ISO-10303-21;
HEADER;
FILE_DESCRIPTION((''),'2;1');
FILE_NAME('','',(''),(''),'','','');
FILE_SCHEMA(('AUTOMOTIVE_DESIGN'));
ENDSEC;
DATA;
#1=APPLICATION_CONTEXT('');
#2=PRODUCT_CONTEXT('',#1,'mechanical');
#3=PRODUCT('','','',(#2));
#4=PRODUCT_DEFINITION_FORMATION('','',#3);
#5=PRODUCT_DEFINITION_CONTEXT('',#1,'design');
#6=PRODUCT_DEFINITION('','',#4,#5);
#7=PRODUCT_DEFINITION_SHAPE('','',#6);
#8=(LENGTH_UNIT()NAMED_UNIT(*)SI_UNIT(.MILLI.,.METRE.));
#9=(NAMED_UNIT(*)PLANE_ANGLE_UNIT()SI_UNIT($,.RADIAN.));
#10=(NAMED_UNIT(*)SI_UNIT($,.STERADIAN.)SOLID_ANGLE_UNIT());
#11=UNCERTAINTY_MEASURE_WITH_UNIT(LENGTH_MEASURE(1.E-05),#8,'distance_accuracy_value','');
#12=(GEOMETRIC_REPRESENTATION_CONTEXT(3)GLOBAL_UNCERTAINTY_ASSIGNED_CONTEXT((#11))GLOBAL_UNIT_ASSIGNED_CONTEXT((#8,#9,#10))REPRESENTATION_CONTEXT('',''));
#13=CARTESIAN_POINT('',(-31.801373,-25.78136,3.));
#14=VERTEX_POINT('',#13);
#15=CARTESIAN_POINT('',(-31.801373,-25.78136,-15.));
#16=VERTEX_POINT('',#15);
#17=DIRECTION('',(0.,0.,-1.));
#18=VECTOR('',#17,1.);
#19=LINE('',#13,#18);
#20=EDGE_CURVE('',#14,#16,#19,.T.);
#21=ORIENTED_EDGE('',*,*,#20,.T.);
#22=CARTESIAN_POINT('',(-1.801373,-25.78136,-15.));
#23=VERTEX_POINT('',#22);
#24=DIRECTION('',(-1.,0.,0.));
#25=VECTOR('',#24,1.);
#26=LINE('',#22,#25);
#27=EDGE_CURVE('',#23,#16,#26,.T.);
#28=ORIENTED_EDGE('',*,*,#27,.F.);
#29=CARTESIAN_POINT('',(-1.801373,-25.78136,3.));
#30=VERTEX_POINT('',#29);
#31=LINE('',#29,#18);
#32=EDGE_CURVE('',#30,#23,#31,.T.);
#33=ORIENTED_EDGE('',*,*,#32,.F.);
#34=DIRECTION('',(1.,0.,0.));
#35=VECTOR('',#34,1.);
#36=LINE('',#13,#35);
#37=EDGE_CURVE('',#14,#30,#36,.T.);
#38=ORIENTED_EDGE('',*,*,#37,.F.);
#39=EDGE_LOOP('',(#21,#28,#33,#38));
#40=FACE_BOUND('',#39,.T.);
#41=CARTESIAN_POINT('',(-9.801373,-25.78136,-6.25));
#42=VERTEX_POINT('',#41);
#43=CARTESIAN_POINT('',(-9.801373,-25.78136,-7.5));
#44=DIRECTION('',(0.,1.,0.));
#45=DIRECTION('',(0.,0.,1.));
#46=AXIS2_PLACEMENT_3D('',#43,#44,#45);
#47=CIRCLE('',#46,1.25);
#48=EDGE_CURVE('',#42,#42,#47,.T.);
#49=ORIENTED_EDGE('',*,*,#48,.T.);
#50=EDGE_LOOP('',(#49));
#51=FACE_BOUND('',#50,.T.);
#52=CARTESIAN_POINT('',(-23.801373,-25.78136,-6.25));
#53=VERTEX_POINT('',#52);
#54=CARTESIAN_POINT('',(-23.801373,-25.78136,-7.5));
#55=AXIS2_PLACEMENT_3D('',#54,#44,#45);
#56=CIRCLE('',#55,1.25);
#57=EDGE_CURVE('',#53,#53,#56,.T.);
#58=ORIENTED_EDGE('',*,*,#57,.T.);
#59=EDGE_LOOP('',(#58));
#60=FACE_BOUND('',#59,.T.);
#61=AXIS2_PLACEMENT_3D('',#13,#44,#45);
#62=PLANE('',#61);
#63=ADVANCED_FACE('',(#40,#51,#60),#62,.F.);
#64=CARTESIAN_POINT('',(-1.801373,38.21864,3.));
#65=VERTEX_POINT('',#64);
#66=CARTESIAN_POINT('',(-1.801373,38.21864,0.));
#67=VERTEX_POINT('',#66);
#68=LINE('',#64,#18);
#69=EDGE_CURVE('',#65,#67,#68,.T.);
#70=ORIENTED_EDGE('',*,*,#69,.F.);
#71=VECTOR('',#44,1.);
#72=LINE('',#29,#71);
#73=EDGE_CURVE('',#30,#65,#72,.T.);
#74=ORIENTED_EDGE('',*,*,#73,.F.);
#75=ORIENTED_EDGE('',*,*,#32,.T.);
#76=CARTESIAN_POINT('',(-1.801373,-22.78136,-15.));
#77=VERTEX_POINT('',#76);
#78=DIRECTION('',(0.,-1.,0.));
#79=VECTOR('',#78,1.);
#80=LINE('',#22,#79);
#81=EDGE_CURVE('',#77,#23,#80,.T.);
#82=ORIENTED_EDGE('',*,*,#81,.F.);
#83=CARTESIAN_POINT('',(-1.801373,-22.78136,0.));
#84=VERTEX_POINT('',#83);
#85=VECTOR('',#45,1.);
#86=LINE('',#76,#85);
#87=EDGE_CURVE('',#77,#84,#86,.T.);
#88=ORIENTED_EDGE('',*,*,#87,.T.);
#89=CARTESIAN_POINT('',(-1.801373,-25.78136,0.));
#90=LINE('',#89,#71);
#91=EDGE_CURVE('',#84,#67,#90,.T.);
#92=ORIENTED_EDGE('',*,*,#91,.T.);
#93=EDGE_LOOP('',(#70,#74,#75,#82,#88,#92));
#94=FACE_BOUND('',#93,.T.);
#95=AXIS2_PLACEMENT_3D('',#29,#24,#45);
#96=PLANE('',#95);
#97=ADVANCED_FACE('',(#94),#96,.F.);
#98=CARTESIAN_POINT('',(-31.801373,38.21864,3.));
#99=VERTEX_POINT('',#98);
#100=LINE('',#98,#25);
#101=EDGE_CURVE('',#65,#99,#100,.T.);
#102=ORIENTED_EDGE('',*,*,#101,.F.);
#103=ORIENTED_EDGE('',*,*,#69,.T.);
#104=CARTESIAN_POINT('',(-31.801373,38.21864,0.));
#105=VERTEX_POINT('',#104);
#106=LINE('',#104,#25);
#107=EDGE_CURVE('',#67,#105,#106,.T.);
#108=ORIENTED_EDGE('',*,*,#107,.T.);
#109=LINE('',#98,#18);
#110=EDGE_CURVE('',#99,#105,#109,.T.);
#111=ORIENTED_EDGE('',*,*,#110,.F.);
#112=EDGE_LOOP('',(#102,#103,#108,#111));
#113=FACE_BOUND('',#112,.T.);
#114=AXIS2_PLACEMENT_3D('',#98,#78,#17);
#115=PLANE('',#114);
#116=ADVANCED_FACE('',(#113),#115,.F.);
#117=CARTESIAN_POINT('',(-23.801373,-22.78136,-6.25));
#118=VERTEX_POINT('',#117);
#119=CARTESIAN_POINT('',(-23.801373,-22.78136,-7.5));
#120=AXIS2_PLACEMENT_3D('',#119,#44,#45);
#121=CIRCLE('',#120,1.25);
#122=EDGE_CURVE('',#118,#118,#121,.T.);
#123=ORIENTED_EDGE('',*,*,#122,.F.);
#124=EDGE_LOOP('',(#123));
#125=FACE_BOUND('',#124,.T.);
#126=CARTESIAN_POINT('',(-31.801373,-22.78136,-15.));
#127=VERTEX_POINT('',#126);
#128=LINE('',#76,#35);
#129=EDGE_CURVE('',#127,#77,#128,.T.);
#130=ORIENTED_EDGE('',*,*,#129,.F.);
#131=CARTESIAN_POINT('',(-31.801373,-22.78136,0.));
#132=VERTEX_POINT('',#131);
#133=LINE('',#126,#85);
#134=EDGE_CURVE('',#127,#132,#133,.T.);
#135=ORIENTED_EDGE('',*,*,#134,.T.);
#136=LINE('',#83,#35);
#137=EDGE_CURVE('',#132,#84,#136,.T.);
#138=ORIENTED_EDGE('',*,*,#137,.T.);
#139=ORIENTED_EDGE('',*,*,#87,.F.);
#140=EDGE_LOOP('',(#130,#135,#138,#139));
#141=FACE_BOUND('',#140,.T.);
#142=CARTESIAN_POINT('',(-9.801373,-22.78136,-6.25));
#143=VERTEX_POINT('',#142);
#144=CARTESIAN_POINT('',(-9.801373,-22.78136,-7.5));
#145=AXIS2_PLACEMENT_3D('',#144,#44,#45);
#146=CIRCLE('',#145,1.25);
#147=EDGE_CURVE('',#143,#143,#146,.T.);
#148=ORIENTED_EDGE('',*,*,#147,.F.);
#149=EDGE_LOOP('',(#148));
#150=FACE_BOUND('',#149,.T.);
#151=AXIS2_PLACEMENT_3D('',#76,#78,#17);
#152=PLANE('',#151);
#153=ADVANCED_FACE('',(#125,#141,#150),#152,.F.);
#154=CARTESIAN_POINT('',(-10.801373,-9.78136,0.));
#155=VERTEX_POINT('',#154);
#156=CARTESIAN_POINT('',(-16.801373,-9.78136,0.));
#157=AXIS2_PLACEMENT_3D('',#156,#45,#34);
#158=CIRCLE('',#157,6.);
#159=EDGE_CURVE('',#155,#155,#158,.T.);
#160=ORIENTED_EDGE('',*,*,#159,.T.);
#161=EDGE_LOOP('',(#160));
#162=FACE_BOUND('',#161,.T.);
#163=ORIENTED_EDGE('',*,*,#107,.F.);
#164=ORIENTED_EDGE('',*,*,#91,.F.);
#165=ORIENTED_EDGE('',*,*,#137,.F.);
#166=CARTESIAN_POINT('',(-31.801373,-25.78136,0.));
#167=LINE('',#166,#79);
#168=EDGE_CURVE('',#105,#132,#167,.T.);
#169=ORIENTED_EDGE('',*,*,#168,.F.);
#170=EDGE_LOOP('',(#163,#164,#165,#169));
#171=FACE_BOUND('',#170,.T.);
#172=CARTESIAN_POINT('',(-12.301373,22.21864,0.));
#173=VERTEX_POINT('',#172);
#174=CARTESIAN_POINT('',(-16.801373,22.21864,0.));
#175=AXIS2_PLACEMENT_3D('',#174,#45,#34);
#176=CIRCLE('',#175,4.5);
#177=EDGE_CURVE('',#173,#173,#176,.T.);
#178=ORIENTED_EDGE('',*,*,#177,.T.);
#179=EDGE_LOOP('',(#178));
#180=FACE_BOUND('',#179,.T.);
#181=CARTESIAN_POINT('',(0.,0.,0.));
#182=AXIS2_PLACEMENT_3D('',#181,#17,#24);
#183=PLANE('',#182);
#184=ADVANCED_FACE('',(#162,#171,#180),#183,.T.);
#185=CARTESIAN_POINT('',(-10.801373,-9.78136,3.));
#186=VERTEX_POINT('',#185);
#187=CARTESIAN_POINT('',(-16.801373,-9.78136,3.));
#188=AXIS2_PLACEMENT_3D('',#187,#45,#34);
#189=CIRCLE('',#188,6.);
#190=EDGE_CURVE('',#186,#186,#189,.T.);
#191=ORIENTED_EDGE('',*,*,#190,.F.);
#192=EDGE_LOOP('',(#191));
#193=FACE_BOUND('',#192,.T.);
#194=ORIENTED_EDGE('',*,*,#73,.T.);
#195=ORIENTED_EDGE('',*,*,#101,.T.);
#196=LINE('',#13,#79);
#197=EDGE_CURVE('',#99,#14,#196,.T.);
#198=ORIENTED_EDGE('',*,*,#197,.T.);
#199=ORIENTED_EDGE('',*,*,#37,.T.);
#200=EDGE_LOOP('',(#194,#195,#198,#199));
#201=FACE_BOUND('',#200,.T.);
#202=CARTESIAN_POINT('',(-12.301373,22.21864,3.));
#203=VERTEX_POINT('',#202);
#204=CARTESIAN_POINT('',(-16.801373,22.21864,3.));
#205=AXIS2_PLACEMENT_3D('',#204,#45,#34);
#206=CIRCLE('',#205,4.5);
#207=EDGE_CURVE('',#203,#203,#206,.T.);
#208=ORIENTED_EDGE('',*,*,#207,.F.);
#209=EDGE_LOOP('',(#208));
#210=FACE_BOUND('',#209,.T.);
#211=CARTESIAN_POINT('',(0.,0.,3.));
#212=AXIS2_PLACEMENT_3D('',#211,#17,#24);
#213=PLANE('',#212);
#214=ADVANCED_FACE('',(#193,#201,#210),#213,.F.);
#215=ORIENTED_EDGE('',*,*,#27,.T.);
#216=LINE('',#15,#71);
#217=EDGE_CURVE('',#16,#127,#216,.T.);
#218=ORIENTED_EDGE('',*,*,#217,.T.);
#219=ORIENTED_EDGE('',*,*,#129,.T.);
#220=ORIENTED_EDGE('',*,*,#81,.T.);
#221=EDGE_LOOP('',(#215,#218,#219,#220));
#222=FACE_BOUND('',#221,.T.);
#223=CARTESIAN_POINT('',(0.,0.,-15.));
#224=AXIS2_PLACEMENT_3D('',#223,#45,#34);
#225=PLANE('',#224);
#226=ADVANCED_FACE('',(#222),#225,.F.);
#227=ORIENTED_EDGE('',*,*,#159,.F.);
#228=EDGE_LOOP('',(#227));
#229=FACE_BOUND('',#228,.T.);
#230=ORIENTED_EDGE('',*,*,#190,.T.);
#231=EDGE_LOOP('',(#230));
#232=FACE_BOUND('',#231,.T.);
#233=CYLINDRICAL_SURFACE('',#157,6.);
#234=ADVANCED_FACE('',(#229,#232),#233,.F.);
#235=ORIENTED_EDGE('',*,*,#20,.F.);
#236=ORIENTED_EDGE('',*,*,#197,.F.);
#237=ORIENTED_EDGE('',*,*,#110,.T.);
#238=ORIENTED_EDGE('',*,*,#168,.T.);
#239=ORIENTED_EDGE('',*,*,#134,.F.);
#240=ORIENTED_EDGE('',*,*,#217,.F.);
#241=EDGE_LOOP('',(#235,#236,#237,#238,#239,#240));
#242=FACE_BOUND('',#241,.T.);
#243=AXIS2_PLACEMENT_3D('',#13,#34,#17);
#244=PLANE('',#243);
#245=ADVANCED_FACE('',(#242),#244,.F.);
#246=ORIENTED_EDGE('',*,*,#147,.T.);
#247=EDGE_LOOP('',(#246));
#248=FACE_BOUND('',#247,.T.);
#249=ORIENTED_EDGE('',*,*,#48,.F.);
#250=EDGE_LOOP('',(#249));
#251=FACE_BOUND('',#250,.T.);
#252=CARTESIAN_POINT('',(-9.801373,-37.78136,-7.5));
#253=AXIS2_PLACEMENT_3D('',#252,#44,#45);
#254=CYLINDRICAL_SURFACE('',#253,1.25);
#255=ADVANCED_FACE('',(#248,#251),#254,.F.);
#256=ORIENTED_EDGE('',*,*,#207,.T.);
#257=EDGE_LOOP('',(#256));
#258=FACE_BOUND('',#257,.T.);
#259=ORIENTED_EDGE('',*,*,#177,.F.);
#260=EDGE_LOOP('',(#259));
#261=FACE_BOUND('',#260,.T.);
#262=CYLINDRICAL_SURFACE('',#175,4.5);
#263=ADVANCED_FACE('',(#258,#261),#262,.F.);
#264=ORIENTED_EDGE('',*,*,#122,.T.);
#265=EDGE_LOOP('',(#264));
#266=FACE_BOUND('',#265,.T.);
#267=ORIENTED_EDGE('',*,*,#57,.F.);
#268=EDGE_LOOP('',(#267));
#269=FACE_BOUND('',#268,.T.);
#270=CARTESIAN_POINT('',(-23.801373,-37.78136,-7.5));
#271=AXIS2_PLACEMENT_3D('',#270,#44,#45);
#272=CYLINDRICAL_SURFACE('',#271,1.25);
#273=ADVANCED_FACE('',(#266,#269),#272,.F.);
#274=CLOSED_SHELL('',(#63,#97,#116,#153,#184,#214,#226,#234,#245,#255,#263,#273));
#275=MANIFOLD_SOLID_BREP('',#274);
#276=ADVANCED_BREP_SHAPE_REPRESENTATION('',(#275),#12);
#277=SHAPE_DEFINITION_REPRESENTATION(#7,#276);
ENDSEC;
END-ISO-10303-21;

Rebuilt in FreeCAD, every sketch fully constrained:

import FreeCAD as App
import Part
import Sketcher
from FreeCAD import Vector


def add_polygon(sketch, points):
    """Adds a closed chain of lines whose ends are joined by coincident constraints."""
    first, n = sketch.GeometryCount, len(points)
    for a, b in zip(points, points[1:] + points[:1]):
        sketch.addGeometry(Part.LineSegment(App.Vector(*a, 0), App.Vector(*b, 0)), False)
    for i in range(n):
        sketch.addConstraint(Sketcher.Constraint("Coincident", first + i, 2, first + (i + 1) % n, 1))

doc = App.newDocument("Part")
body = doc.addObject("PartDesign::Body", "Body")

# Sketch on XY plane
sketch1 = body.newObject("Sketcher::SketchObject", "Sketch")
sketch1.AttachmentSupport = (doc.getObject("XY_Plane"), [""])
sketch1.MapMode = "FlatFace"
add_polygon(sketch1, [(-32, 38), (-32, -26), (-2, -26), (-2, 38)])  # lines 0-3
sketch1.addConstraint(Sketcher.Constraint("Vertical", 0))
sketch1.addConstraint(Sketcher.Constraint("Horizontal", 1))
sketch1.addConstraint(Sketcher.Constraint("Vertical", 2))
sketch1.addConstraint(Sketcher.Constraint("Horizontal", 3))
sketch1.addConstraint(Sketcher.Constraint("DistanceX", 1, 1, 1, 2, 30.0))
sketch1.addConstraint(Sketcher.Constraint("DistanceY", 0, 2, 0, 1, 64.0))
sketch1.addConstraint(Sketcher.Constraint("DistanceY", 0, 2, -1, 1, 25.78136))
sketch1.addConstraint(Sketcher.Constraint("DistanceX", 0, 2, -1, 1, 31.801373))
pad1 = body.newObject("PartDesign::Pad", "Pad")
pad1.Profile = sketch1
pad1.Length = 3

# Sketch on XY plane
sketch2 = body.newObject("Sketcher::SketchObject", "Sketch001")
sketch2.AttachmentSupport = (doc.getObject("XY_Plane"), [""])
sketch2.MapMode = "FlatFace"
sketch2.AttachmentOffset = App.Placement(Vector(0, 0, 3), App.Rotation())
sketch2.addGeometry(Part.Circle(Vector(-16.8, 22.2, 0), Vector(0, 0, 1), 4.5), False)
sketch2.addGeometry(Part.Circle(Vector(-16.8, -9.8, 0), Vector(0, 0, 1), 6), False)
sketch2.addConstraint(Sketcher.Constraint("Vertical", 0, 3, 1, 3))
sketch2.addConstraint(Sketcher.Constraint("Diameter", 0, 9.0))
sketch2.addConstraint(Sketcher.Constraint("Diameter", 1, 12.0))
sketch2.addConstraint(Sketcher.Constraint("DistanceY", 1, 3, 0, 3, 32.0))
sketch2.addConstraint(Sketcher.Constraint("DistanceY", -1, 1, 0, 3, 22.21864))
sketch2.addConstraint(Sketcher.Constraint("DistanceX", 0, 3, -1, 1, 16.801373))
pocket1 = body.newObject("PartDesign::Pocket", "Pocket")
pocket1.Profile = sketch2
pocket1.Length = 3

# Sketch on XY plane
sketch3 = body.newObject("Sketcher::SketchObject", "Sketch002")
sketch3.AttachmentSupport = (doc.getObject("XY_Plane"), [""])
sketch3.MapMode = "FlatFace"
add_polygon(sketch3, [(-1.8, -22.8), (-1.8, -25.8), (-31.8, -25.8), (-31.8, -22.8)])  # lines 0-3
sketch3.addConstraint(Sketcher.Constraint("Vertical", 0))
sketch3.addConstraint(Sketcher.Constraint("Horizontal", 1))
sketch3.addConstraint(Sketcher.Constraint("Vertical", 2))
sketch3.addConstraint(Sketcher.Constraint("Horizontal", 3))
sketch3.addConstraint(Sketcher.Constraint("DistanceX", 1, 2, 1, 1, 30.0))
sketch3.addConstraint(Sketcher.Constraint("DistanceY", 0, 2, 0, 1, 3.0))
sketch3.addConstraint(Sketcher.Constraint("DistanceY", 0, 2, -1, 1, 25.78136))
sketch3.addConstraint(Sketcher.Constraint("DistanceX", 0, 2, -1, 1, 1.801373))
pad2 = body.newObject("PartDesign::Pad", "Pad001")
pad2.Profile = sketch3
pad2.Length = 15
pad2.Reversed = True

# Sketch on XZ plane
sketch4 = body.newObject("Sketcher::SketchObject", "Sketch003")
sketch4.AttachmentSupport = (doc.getObject("XZ_Plane"), [""])
sketch4.MapMode = "FlatFace"
sketch4.AttachmentOffset = App.Placement(Vector(0, 0, 22.78136), App.Rotation())
sketch4.addGeometry(Part.Circle(Vector(-9.8, -7.5, 0), Vector(0, 0, 1), 1.2), False)
sketch4.addGeometry(Part.Circle(Vector(-23.8, -7.5, 0), Vector(0, 0, 1), 1.2), False)
sketch4.addConstraint(Sketcher.Constraint("Equal", 0, 1))
sketch4.addConstraint(Sketcher.Constraint("Horizontal", 0, 3, 1, 3))
sketch4.addConstraint(Sketcher.Constraint("Diameter", 0, 2.5))
sketch4.addConstraint(Sketcher.Constraint("DistanceX", 1, 3, 0, 3, 14.0))
sketch4.addConstraint(Sketcher.Constraint("DistanceY", 0, 3, -1, 1, 7.5))
sketch4.addConstraint(Sketcher.Constraint("DistanceX", 0, 3, -1, 1, 9.801373))
pocket2 = body.newObject("PartDesign::Pocket", "Pocket001")
pocket2.Profile = sketch4
pocket2.Length = 15
pocket2.Reversed = True

doc.recompute()
